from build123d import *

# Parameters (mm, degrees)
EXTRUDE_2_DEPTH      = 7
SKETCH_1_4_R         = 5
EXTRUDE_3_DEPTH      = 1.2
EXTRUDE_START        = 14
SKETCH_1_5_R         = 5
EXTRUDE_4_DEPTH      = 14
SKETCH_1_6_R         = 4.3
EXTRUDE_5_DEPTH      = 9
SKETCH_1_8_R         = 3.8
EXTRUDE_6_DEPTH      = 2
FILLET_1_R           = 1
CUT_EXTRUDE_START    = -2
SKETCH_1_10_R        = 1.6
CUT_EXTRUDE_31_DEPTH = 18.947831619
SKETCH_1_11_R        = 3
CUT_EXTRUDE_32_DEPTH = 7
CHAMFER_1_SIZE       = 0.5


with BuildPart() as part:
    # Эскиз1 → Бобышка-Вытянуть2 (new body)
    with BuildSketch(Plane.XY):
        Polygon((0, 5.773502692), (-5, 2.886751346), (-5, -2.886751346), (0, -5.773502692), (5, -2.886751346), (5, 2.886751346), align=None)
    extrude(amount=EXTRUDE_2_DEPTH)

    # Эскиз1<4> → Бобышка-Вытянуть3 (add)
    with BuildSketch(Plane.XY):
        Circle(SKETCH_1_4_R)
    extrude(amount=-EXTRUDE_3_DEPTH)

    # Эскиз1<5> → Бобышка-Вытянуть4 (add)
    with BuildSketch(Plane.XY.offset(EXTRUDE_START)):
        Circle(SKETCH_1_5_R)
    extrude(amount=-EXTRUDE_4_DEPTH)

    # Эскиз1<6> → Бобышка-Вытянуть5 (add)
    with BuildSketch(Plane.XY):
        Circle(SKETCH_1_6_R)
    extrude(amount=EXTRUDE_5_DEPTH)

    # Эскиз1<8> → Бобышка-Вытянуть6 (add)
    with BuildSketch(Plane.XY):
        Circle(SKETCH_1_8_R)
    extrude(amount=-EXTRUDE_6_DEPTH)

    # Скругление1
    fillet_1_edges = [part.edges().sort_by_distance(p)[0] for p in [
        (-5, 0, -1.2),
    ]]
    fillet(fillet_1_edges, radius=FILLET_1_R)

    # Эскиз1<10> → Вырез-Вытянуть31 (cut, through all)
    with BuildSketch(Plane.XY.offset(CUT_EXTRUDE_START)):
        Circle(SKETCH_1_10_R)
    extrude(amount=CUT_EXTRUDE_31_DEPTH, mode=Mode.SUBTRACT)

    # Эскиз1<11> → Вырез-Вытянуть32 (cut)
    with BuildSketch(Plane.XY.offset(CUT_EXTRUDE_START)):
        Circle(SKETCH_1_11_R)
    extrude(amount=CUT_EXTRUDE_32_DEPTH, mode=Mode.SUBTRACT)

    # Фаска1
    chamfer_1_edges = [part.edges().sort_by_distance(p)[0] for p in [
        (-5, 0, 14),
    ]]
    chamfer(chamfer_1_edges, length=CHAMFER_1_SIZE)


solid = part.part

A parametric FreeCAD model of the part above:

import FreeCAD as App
import Part
import Sketcher
from FreeCAD import Vector
Q = App.Units.Quantity


def edges_at(feature, points):
    """Names of the edges that pass closest to the given points."""
    edges = feature.Shape.Edges
    near = lambda p: min(range(len(edges)), key=lambda i: edges[i].distToShape(Part.Vertex(*p))[0])
    return sorted({f"Edge{near(p) + 1}" for p in points})

doc = App.newDocument("Part")
body = doc.addObject("PartDesign::Body", "Body")

# Sketch on XY plane
sketch1 = body.newObject("Sketcher::SketchObject", "Sketch")
sketch1.AttachmentSupport = (doc.getObject("XY_Plane"), [""])
sketch1.MapMode = "FlatFace"
sketch1.addGeometry([
    Part.LineSegment(Vector(0, 6, 0), Vector(-5, 3, 0)),  # 0
    Part.LineSegment(Vector(-5, 3, 0), Vector(-5, -3, 0)),  # 1
    Part.LineSegment(Vector(-5, -3, 0), Vector(0, -6, 0)),  # 2
    Part.LineSegment(Vector(0, -6, 0), Vector(5, -3, 0)),  # 3
    Part.LineSegment(Vector(5, -3, 0), Vector(5, 3, 0)),  # 4
    Part.LineSegment(Vector(5, 3, 0), Vector(0, 6, 0)),  # 5
], False)
sketch1.addConstraint([
    Sketcher.Constraint("Coincident", 0, 2, 1, 1),
    Sketcher.Constraint("Coincident", 1, 2, 2, 1),
    Sketcher.Constraint("Coincident", 2, 2, 3, 1),
    Sketcher.Constraint("Coincident", 3, 2, 4, 1),
    Sketcher.Constraint("Coincident", 4, 2, 5, 1),
    Sketcher.Constraint("Coincident", 5, 2, 0, 1),
    Sketcher.Constraint("Vertical", 1),
    Sketcher.Constraint("Vertical", 4),
    Sketcher.Constraint("Symmetric", 0, 2, 3, 2, -1, 1),
    Sketcher.Constraint("Symmetric", 2, 2, 5, 2, -1, 1),
    Sketcher.Constraint("PointOnObject", 2, 2, -2),
    Sketcher.Constraint("Parallel", 2, 5),
    Sketcher.Constraint("Horizontal", 1, 2, 3, 2),
    Sketcher.Constraint("Angle", 0, Q("-150 deg")),
    Sketcher.Constraint("DistanceX", 0, 2, -1, 1, Q("5 mm")),
    Sketcher.Constraint("DistanceY", 1, 2, 1, 1, Q("5.773503 mm")),
])
pad1 = body.newObject("PartDesign::Pad", "Pad")
pad1.Profile = sketch1
pad1.Length = 7

# Sketch on XY plane
sketch2 = body.newObject("Sketcher::SketchObject", "Sketch001")
sketch2.AttachmentSupport = (doc.getObject("XY_Plane"), [""])
sketch2.MapMode = "FlatFace"
sketch2.addGeometry(Part.Circle(Vector(0, 0, 0), Vector(0, 0, 1), 5), False)
sketch2.addConstraint([
    Sketcher.Constraint("Coincident", 0, 3, -1, 1),
    Sketcher.Constraint("Diameter", 0, Q("10 mm")),
])
pad2 = body.newObject("PartDesign::Pad", "Pad001")
pad2.Profile = sketch2
pad2.Length = 1.2
pad2.Reversed = True

# Sketch on XY plane
sketch3 = body.newObject("Sketcher::SketchObject", "Sketch002")
sketch3.AttachmentSupport = (doc.getObject("XY_Plane"), [""])
sketch3.MapMode = "FlatFace"
sketch3.AttachmentOffset = App.Placement(Vector(0, 0, 14), App.Rotation())
sketch3.addGeometry(Part.Circle(Vector(0, 0, 0), Vector(0, 0, 1), 5), False)
sketch3.addConstraint([
    Sketcher.Constraint("Coincident", 0, 3, -1, 1),
    Sketcher.Constraint("Diameter", 0, Q("10 mm")),
])
pad3 = body.newObject("PartDesign::Pad", "Pad002")
pad3.Profile = sketch3
pad3.Length = 14
pad3.Reversed = True

# Sketch on XY plane
sketch4 = body.newObject("Sketcher::SketchObject", "Sketch003")
sketch4.AttachmentSupport = (doc.getObject("XY_Plane"), [""])
sketch4.MapMode = "FlatFace"
sketch4.addGeometry(Part.Circle(Vector(0, 0, 0), Vector(0, 0, 1), 4.3), False)
sketch4.addConstraint([
    Sketcher.Constraint("Coincident", 0, 3, -1, 1),
    Sketcher.Constraint("Diameter", 0, Q("8.6 mm")),
])
pad4 = body.newObject("PartDesign::Pad", "Pad003")
pad4.Profile = sketch4
pad4.Length = 9

# Sketch on XY plane
sketch5 = body.newObject("Sketcher::SketchObject", "Sketch004")
sketch5.AttachmentSupport = (doc.getObject("XY_Plane"), [""])
sketch5.MapMode = "FlatFace"
sketch5.addGeometry(Part.Circle(Vector(0, 0, 0), Vector(0, 0, 1), 3.8), False)
sketch5.addConstraint([
    Sketcher.Constraint("Coincident", 0, 3, -1, 1),
    Sketcher.Constraint("Diameter", 0, Q("7.6 mm")),
])
pad5 = body.newObject("PartDesign::Pad", "Pad004")
pad5.Profile = sketch5
pad5.Length = 2
pad5.Reversed = True
doc.recompute()

fillet = body.newObject("PartDesign::Fillet", "Fillet")
fillet.Base = (pad5, edges_at(pad5, [(-5, 0, -1.2)]))
fillet.Radius = 1

# Sketch on XY plane
sketch6 = body.newObject("Sketcher::SketchObject", "Sketch005")
sketch6.AttachmentSupport = (doc.getObject("XY_Plane"), [""])
sketch6.MapMode = "FlatFace"
sketch6.AttachmentOffset = App.Placement(Vector(0, 0, -2), App.Rotation())
sketch6.addGeometry(Part.Circle(Vector(0, 0, 0), Vector(0, 0, 1), 1.6), False)
sketch6.addConstraint([
    Sketcher.Constraint("Coincident", 0, 3, -1, 1),
    Sketcher.Constraint("Diameter", 0, Q("3.2 mm")),
])
pocket1 = body.newObject("PartDesign::Pocket", "Pocket")
pocket1.Profile = sketch6
pocket1.Type = "ThroughAll"
pocket1.Reversed = True

# Sketch on XY plane
sketch7 = body.newObject("Sketcher::SketchObject", "Sketch006")
sketch7.AttachmentSupport = (doc.getObject("XY_Plane"), [""])
sketch7.MapMode = "FlatFace"
sketch7.AttachmentOffset = App.Placement(Vector(0, 0, -2), App.Rotation())
sketch7.addGeometry(Part.Circle(Vector(0, 0, 0), Vector(0, 0, 1), 3), False)
sketch7.addConstraint([
    Sketcher.Constraint("Coincident", 0, 3, -1, 1),
    Sketcher.Constraint("Diameter", 0, Q("6 mm")),
])
pocket2 = body.newObject("PartDesign::Pocket", "Pocket001")
pocket2.Profile = sketch7
pocket2.Length = 7
pocket2.Reversed = True
doc.recompute()

chamfer = body.newObject("PartDesign::Chamfer", "Chamfer")
chamfer.Base = (pocket2, edges_at(pocket2, [(-5, 0, 14)]))
chamfer.Size = 0.5

doc.recompute()
